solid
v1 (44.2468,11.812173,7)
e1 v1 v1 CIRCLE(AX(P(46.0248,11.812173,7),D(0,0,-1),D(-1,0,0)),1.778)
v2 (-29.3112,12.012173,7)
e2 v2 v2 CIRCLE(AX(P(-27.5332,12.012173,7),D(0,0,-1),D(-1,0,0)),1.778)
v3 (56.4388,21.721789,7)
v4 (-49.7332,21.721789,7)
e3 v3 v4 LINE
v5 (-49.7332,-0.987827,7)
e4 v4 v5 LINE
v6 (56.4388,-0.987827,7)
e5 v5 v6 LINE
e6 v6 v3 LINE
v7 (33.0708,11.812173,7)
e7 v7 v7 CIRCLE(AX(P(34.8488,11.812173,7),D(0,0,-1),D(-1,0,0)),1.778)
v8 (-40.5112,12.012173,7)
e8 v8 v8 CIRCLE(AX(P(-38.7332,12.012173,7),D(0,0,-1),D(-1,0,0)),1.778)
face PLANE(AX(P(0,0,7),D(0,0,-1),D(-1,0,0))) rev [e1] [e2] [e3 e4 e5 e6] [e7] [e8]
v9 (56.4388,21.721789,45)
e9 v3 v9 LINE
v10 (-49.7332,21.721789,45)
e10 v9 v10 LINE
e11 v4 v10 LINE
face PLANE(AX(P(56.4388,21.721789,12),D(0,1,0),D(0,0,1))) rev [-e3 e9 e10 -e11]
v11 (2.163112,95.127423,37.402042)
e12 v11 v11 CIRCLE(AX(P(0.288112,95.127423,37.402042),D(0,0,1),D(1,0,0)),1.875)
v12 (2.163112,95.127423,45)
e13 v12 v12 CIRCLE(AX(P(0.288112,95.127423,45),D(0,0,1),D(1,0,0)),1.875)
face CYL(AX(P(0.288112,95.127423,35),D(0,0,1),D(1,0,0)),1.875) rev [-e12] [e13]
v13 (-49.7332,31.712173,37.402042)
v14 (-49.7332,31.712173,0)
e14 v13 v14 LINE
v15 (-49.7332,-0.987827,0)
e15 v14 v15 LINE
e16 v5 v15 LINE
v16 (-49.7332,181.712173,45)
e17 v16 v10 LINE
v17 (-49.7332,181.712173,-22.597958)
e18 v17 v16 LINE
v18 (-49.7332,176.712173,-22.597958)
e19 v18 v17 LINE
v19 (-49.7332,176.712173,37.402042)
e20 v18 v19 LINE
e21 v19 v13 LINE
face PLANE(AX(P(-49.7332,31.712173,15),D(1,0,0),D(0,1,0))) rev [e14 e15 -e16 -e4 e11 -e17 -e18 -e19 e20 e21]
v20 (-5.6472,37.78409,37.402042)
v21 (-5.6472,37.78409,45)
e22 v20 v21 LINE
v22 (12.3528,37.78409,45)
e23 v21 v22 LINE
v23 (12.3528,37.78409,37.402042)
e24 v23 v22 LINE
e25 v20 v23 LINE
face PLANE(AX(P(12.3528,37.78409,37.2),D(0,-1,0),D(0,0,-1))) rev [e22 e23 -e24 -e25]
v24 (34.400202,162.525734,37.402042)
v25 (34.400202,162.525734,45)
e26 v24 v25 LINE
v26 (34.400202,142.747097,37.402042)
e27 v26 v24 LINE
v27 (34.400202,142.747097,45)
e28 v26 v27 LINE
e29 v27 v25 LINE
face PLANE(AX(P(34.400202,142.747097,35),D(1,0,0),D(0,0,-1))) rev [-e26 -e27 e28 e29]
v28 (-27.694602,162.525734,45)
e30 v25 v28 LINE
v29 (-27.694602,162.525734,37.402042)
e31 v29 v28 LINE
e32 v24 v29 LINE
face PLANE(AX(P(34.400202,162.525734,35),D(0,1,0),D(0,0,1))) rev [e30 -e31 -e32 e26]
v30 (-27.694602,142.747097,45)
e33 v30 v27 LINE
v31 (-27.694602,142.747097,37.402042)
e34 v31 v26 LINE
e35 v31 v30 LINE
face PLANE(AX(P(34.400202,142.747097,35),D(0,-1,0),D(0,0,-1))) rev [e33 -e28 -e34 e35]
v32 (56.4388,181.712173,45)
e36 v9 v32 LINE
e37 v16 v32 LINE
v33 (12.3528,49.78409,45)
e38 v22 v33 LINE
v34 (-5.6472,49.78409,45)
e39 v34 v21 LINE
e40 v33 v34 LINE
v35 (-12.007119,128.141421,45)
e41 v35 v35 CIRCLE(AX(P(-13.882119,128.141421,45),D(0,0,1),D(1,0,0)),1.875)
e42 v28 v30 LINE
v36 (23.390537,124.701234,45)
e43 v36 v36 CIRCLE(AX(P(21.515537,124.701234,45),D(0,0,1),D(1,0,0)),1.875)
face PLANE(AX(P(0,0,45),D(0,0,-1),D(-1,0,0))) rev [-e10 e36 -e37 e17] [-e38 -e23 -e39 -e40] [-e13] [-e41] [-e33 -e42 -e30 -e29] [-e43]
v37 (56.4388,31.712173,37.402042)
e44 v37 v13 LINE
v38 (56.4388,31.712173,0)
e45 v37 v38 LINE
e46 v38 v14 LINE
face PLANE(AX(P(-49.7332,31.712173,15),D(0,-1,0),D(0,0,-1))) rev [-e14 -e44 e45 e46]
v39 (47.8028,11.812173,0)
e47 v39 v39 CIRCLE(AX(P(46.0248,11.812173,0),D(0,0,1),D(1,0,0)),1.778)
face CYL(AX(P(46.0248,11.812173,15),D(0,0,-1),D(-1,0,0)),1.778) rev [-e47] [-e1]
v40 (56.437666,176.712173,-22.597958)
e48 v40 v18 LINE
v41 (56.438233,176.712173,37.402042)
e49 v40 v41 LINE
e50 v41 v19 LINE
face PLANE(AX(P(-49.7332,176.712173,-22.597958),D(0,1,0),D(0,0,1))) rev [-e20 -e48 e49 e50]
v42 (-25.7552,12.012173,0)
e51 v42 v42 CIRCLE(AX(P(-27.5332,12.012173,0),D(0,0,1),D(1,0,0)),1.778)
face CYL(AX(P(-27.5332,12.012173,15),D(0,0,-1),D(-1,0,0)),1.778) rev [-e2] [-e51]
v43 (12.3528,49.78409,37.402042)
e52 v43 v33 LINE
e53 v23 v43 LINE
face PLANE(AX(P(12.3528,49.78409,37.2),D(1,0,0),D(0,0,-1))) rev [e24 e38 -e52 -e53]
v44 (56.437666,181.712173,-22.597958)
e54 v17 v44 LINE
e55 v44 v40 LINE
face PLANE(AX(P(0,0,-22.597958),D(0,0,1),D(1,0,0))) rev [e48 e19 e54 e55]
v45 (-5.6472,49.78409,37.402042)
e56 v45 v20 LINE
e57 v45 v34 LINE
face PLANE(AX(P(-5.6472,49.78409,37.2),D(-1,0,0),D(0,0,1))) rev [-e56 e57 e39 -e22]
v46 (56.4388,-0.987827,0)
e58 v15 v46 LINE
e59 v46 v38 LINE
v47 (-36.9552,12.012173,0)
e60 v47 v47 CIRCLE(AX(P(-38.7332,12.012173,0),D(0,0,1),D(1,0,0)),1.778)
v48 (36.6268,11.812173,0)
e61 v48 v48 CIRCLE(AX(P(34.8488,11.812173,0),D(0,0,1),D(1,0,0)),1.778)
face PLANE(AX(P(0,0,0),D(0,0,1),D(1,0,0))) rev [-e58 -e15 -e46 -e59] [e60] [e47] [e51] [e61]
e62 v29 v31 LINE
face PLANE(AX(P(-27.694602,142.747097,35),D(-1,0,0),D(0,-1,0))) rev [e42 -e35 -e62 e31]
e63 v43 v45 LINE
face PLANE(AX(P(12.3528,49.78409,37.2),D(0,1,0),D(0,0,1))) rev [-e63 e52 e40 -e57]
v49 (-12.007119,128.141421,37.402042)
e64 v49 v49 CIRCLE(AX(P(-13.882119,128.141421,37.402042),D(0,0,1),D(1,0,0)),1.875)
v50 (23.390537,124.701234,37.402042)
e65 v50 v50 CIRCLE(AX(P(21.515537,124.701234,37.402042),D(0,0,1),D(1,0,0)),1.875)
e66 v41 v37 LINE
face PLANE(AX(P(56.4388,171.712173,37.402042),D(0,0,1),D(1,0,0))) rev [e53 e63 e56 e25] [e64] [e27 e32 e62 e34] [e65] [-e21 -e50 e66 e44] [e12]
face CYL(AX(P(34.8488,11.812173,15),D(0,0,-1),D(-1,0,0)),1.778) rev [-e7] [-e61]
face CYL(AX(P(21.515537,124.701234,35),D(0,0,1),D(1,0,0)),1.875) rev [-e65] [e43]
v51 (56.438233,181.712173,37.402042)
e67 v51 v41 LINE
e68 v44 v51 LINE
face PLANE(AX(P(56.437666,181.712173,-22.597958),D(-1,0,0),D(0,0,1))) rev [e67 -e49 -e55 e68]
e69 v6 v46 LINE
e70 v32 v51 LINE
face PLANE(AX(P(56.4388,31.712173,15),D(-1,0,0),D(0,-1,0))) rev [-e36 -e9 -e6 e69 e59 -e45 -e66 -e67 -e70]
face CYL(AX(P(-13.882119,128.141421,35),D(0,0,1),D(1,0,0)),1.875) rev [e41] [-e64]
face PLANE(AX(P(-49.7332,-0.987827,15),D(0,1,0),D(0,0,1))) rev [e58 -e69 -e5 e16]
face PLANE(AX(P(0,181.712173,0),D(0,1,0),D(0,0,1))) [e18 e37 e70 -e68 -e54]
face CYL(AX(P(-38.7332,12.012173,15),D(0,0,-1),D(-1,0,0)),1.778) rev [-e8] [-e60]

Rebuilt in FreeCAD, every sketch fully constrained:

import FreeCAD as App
import Part
import Sketcher
from FreeCAD import Vector
Q = App.Units.Quantity


def add_polygon(sketch, points):
    """Adds a closed chain of lines whose ends are joined by coincident constraints."""
    first, n = sketch.GeometryCount, len(points)
    for a, b in zip(points, points[1:] + points[:1]):
        sketch.addGeometry(Part.LineSegment(App.Vector(*a, 0), App.Vector(*b, 0)), False)
    for i in range(n):
        sketch.addConstraint(Sketcher.Constraint("Coincident", first + i, 2, first + (i + 1) % n, 1))

doc = App.newDocument("Part")
body = doc.addObject("PartDesign::Body", "Body")

sketch1 = body.newObject("Sketcher::SketchObject", "Sketch")
sketch1.AttachmentSupport = (doc.getObject("XY_Plane"), [""])
sketch1.MapMode = "FlatFace"
add_polygon(sketch1, [(-49.7, 31.7), (-49.7, -1), (56.4, -1), (56.4, 31.7)])
sketch1.addGeometry(Part.Circle(Vector(34.8, 11.8, 0), Vector(0, 0, 1), 1.8), False)
sketch1.addGeometry(Part.Circle(Vector(46, 11.8, 0), Vector(0, 0, 1), 1.8), False)
sketch1.addGeometry(Part.Circle(Vector(-38.7, 12, 0), Vector(0, 0, 1), 1.8), False)
sketch1.addGeometry(Part.Circle(Vector(-27.5, 12, 0), Vector(0, 0, 1), 1.8), False)
sketch1.addConstraint([
    Sketcher.Constraint("Vertical", 0),
    Sketcher.Constraint("Horizontal", 1),
    Sketcher.Constraint("Vertical", 2),
    Sketcher.Constraint("Horizontal", 3),
    Sketcher.Constraint("Equal", 4, 5),
    Sketcher.Constraint("Equal", 5, 6),
    Sketcher.Constraint("Equal", 6, 7),
    Sketcher.Constraint("Horizontal", 4, 3, 5, 3),
    Sketcher.Constraint("Horizontal", 6, 3, 7, 3),
    Sketcher.Constraint("Diameter", 4, Q("3.556 mm")),
    Sketcher.Constraint("DistanceY", 0, 2, 0, 1, Q("32.7 mm")),
    Sketcher.Constraint("DistanceX", 0, 2, 6, 3, Q("11 mm")),
    Sketcher.Constraint("DistanceY", 0, 2, 6, 3, Q("13 mm")),
    Sketcher.Constraint("DistanceY", 4, 3, 6, 3, Q("0.2 mm")),
    Sketcher.Constraint("DistanceX", 6, 3, 7, 3, Q("11.2 mm")),
    Sketcher.Constraint("DistanceX", 1, 1, 1, 2, Q("106.172 mm")),
    Sketcher.Constraint("DistanceX", 4, 3, 1, 2, Q("21.59 mm")),
    Sketcher.Constraint("DistanceX", 4, 3, 5, 3, Q("11.176 mm")),
    Sketcher.Constraint("DistanceX", -1, 1, 4, 3, Q("34.8488 mm")),
    Sketcher.Constraint("DistanceY", -1, 1, 4, 3, Q("11.812173 mm")),
])
pad1 = body.newObject("PartDesign::Pad", "Pad")
pad1.Profile = sketch1
pad1.Length = 15

sketch2 = body.newObject("Sketcher::SketchObject", "Sketch001")
sketch2.AttachmentSupport = (doc.getObject("XY_Plane"), [""])
sketch2.MapMode = "FlatFace"
sketch2.AttachmentOffset = App.Placement(Vector(0, 0, 15), App.Rotation())
add_polygon(sketch2, [(-49.7, 31.7), (-49.7, -1), (56.4, -1), (56.4, 31.7)])
sketch2.addGeometry(Part.Circle(Vector(34.8, 11.8, 0), Vector(0, 0, 1), 1.8), False)
sketch2.addGeometry(Part.Circle(Vector(46, 11.8, 0), Vector(0, 0, 1), 1.8), False)
sketch2.addGeometry(Part.Circle(Vector(-38.7, 12, 0), Vector(0, 0, 1), 1.8), False)
sketch2.addGeometry(Part.Circle(Vector(-27.5, 12, 0), Vector(0, 0, 1), 1.8), False)
sketch2.addConstraint([
    Sketcher.Constraint("Vertical", 0),
    Sketcher.Constraint("Horizontal", 1),
    Sketcher.Constraint("Vertical", 2),
    Sketcher.Constraint("Horizontal", 3),
    Sketcher.Constraint("Equal", 4, 5),
    Sketcher.Constraint("Equal", 5, 6),
    Sketcher.Constraint("Equal", 6, 7),
    Sketcher.Constraint("Horizontal", 4, 3, 5, 3),
    Sketcher.Constraint("Horizontal", 6, 3, 7, 3),
    Sketcher.Constraint("Diameter", 4, Q("3.556 mm")),
    Sketcher.Constraint("DistanceY", 0, 2, 0, 1, Q("32.7 mm")),
    Sketcher.Constraint("DistanceX", 0, 2, 6, 3, Q("11 mm")),
    Sketcher.Constraint("DistanceY", 0, 2, 6, 3, Q("13 mm")),
    Sketcher.Constraint("DistanceY", 4, 3, 6, 3, Q("0.2 mm")),
    Sketcher.Constraint("DistanceX", 6, 3, 7, 3, Q("11.2 mm")),
    Sketcher.Constraint("DistanceX", 1, 1, 1, 2, Q("106.172 mm")),
    Sketcher.Constraint("DistanceX", 4, 3, 1, 2, Q("21.59 mm")),
    Sketcher.Constraint("DistanceX", 4, 3, 5, 3, Q("11.176 mm")),
    Sketcher.Constraint("DistanceX", -1, 1, 4, 3, Q("34.8488 mm")),
    Sketcher.Constraint("DistanceY", -1, 1, 4, 3, Q("11.812173 mm")),
])
pad2 = body.newObject("PartDesign::Pad", "Pad001")
pad2.Profile = sketch2
pad2.Length = 30

sketch3 = body.newObject("Sketcher::SketchObject", "Sketch002")
sketch3.AttachmentSupport = (doc.getObject("YZ_Plane"), [""])
sketch3.MapMode = "FlatFace"
sketch3.AttachmentOffset = App.Placement(Vector(0, 0, -49.7332), App.Rotation())
add_polygon(sketch3, [(32, 26), (-1, 45), (32, 45)])
sketch3.addConstraint([
    Sketcher.Constraint("Horizontal", 1),
    Sketcher.Constraint("Vertical", 2),
    Sketcher.Constraint("DistanceX", 1, 1, 1, 2, Q("32.7 mm")),
    Sketcher.Constraint("DistanceY", -1, 1, 0, 2, Q("45 mm")),
    Sketcher.Constraint("DistanceY", 2, 2, 2, 1, Q("19.497232 mm")),
    Sketcher.Constraint("DistanceX", 0, 2, -1, 1, Q("0.987827 mm")),
])
pad3 = body.newObject("PartDesign::Pad", "Pad002")
pad3.Profile = sketch3
pad3.Length = 106

sketch4 = body.newObject("Sketcher::SketchObject", "Sketch003")
sketch4.AttachmentSupport = (doc.getObject("XZ_Plane"), [""])
sketch4.MapMode = "FlatFace"
sketch4.AttachmentOffset = App.Placement(Vector(0, 0, -31.712173), App.Rotation())
add_polygon(sketch4, [(-50, 37), (-50, 45), (56, 45), (56, 37)])
sketch4.addConstraint([
    Sketcher.Constraint("Vertical", 0),
    Sketcher.Constraint("Horizontal", 1),
    Sketcher.Constraint("Vertical", 2),
    Sketcher.Constraint("Horizontal", 3),
    Sketcher.Constraint("DistanceY", -1, 1, 0, 2, Q("45 mm")),
    Sketcher.Constraint("DistanceX", 1, 1, 1, 2, Q("106.172 mm")),
    Sketcher.Constraint("DistanceX", 0, 2, -1, 1, Q("49.7332 mm")),
    Sketcher.Constraint("DistanceY", 0, 1, 0, 2, Q("7.597958 mm")),
])
pad4 = body.newObject("PartDesign::Pad", "Pad003")
pad4.Profile = sketch4
pad4.Length = 140
pad4.Reversed = True

sketch5 = body.newObject("Sketcher::SketchObject", "Sketch004")
sketch5.AttachmentSupport = (doc.getObject("YZ_Plane"), [""])
sketch5.MapMode = "FlatFace"
sketch5.AttachmentOffset = App.Placement(Vector(0, 0, -49.7332), App.Rotation())
add_polygon(sketch5, [(-1, 17), (-1, 45), (22, 45)])
sketch5.addConstraint([
    Sketcher.Constraint("Vertical", 0),
    Sketcher.Constraint("Horizontal", 1),
    Sketcher.Constraint("DistanceY", -1, 1, 0, 2, Q("45 mm")),
    Sketcher.Constraint("DistanceX", 1, 1, 1, 2, Q("22.709616 mm")),
    Sketcher.Constraint("DistanceY", 0, 1, 0, 2, Q("27.948757 mm")),
    Sketcher.Constraint("DistanceX", -1, 1, 1, 2, Q("21.721789 mm")),
])
pocket1 = body.newObject("PartDesign::Pocket", "Pocket")
pocket1.Profile = sketch5
pocket1.Length = 146
pocket1.Reversed = True

sketch6 = body.newObject("Sketcher::SketchObject", "Sketch005")
sketch6.AttachmentSupport = (doc.getObject("XZ_Plane"), [""])
sketch6.MapMode = "FlatFace"
sketch6.AttachmentOffset = App.Placement(Vector(0, 0, -171.712173), App.Rotation())
add_polygon(sketch6, [(-50, 37), (-50, 45), (56, 45), (56, 37)])
sketch6.addConstraint([
    Sketcher.Constraint("Vertical", 0),
    Sketcher.Constraint("Horizontal", 1),
    Sketcher.Constraint("Vertical", 2),
    Sketcher.Constraint("Horizontal", 3),
    Sketcher.Constraint("DistanceY", -1, 1, 0, 2, Q("45 mm")),
    Sketcher.Constraint("DistanceX", 1, 1, 1, 2, Q("106.172 mm")),
    Sketcher.Constraint("DistanceX", 0, 2, -1, 1, Q("49.7332 mm")),
    Sketcher.Constraint("DistanceY", 0, 1, 0, 2, Q("7.597958 mm")),
])
pad5 = body.newObject("PartDesign::Pad", "Pad004")
pad5.Profile = sketch6
pad5.Length = 10
pad5.Reversed = True

sketch7 = body.newObject("Sketcher::SketchObject", "Sketch006")
sketch7.AttachmentSupport = (doc.getObject("XY_Plane"), [""])
sketch7.MapMode = "FlatFace"
sketch7.AttachmentOffset = App.Placement(Vector(0, 0, 37.402042), App.Rotation())
add_polygon(sketch7, [(56, 182), (56, 177), (-50, 177), (-50, 182)])
sketch7.addConstraint([
    Sketcher.Constraint("Vertical", 0),
    Sketcher.Constraint("Horizontal", 1),
    Sketcher.Constraint("Vertical", 2),
    Sketcher.Constraint("Horizontal", 3),
    Sketcher.Constraint("DistanceY", 0, 2, 0, 1, Q("5 mm")),
    Sketcher.Constraint("DistanceX", 1, 2, -1, 1, Q("49.7332 mm")),
    Sketcher.Constraint("DistanceX", 1, 2, 1, 1, Q("106.170866 mm")),
    Sketcher.Constraint("DistanceY", -1, 1, 0, 2, Q("176.712173 mm")),
])
pad6 = body.newObject("PartDesign::Pad", "Pad005")
pad6.Profile = sketch7
pad6.Length = 60
pad6.Reversed = True

sketch8 = body.newObject("Sketcher::SketchObject", "Sketch007")
sketch8.AttachmentSupport = (doc.getObject("XY_Plane"), [""])
sketch8.MapMode = "FlatFace"
sketch8.AttachmentOffset = App.Placement(Vector(0, 0, 45), App.Rotation())
add_polygon(sketch8, [(-6, 50), (-6, 38), (12, 38), (12, 50)])
sketch8.addConstraint([
    Sketcher.Constraint("Vertical", 0),
    Sketcher.Constraint("Horizontal", 1),
    Sketcher.Constraint("Vertical", 2),
    Sketcher.Constraint("Horizontal", 3),
    Sketcher.Constraint("DistanceX", 1, 1, 1, 2, Q("18 mm")),
    Sketcher.Constraint("DistanceY", 0, 2, 0, 1, Q("12 mm")),
    Sketcher.Constraint("DistanceX", 0, 2, -1, 1, Q("5.6472 mm")),
    Sketcher.Constraint("DistanceY", -1, 1, 0, 2, Q("37.78409 mm")),
])
pocket2 = body.newObject("PartDesign::Pocket", "Pocket001")
pocket2.Profile = sketch8
pocket2.Length = 7.8

sketch9 = body.newObject("Sketcher::SketchObject", "Sketch008")
sketch9.AttachmentSupport = (doc.getObject("XY_Plane"), [""])
sketch9.MapMode = "FlatFace"
sketch9.AttachmentOffset = App.Placement(Vector(0, 0, 45), App.Rotation())
sketch9.addGeometry([
    Part.Circle(Vector(-13.9, 128.1, 0), Vector(0, 0, 1), 1.9),
    Part.Circle(Vector(21.5, 124.7, 0), Vector(0, 0, 1), 1.9),
    Part.Circle(Vector(0.3, 95.1, 0), Vector(0, 0, 1), 1.9),
], False)
sketch9.addConstraint([
    Sketcher.Constraint("Equal", 0, 1),
    Sketcher.Constraint("Equal", 1, 2),
    Sketcher.Constraint("Diameter", 0, Q("3.75 mm")),
    Sketcher.Constraint("DistanceX", 0, 3, -1, 1, Q("13.882119 mm")),
    Sketcher.Constraint("DistanceY", -1, 1, 0, 3, Q("128.141421 mm")),
    Sketcher.Constraint("DistanceX", -1, 1, 2, 3, Q("0.288112 mm")),
    Sketcher.Constraint("DistanceY", 2, 3, 1, 3, Q("29.573811 mm")),
    Sketcher.Constraint("DistanceX", -1, 1, 1, 3, Q("21.515537 mm")),
    Sketcher.Constraint("DistanceY", -1, 1, 1, 3, Q("124.701234 mm")),
])
pocket3 = body.newObject("PartDesign::Pocket", "Pocket002")
pocket3.Profile = sketch9
pocket3.Length = 10

sketch10 = body.newObject("Sketcher::SketchObject", "Sketch009")
sketch10.AttachmentSupport = (doc.getObject("XY_Plane"), [""])
sketch10.MapMode = "FlatFace"
sketch10.AttachmentOffset = App.Placement(Vector(0, 0, 45), App.Rotation())
add_polygon(sketch10, [(-50, 22), (-50, -1), (56, -1), (56, 22)])
sketch10.addConstraint([
    Sketcher.Constraint("Vertical", 0),
    Sketcher.Constraint("Horizontal", 1),
    Sketcher.Constraint("Vertical", 2),
    Sketcher.Constraint("Horizontal", 3),
    Sketcher.Constraint("DistanceX", 1, 1, 1, 2, Q("106.172 mm")),
    Sketcher.Constraint("DistanceX", 0, 2, -1, 1, Q("49.7332 mm")),
    Sketcher.Constraint("DistanceY", 0, 2, 0, 1, Q("22.709616 mm")),
    Sketcher.Constraint("DistanceY", -1, 1, 2, 2, Q("21.721789 mm")),
])
pocket4 = body.newObject("PartDesign::Pocket", "Pocket003")
pocket4.Profile = sketch10
pocket4.Length = 33

sketch11 = body.newObject("Sketcher::SketchObject", "Sketch010")
sketch11.AttachmentSupport = (doc.getObject("XY_Plane"), [""])
sketch11.MapMode = "FlatFace"
sketch11.AttachmentOffset = App.Placement(Vector(0, 0, 12), App.Rotation())
add_polygon(sketch11, [(-50, 22), (-50, -1), (56, -1), (56, 22)])
sketch11.addConstraint([
    Sketcher.Constraint("Vertical", 0),
    Sketcher.Constraint("Horizontal", 1),
    Sketcher.Constraint("Vertical", 2),
    Sketcher.Constraint("Horizontal", 3),
    Sketcher.Constraint("DistanceX", 1, 1, 1, 2, Q("106.172 mm")),
    Sketcher.Constraint("DistanceX", 0, 2, -1, 1, Q("49.7332 mm")),
    Sketcher.Constraint("DistanceY", 0, 2, 0, 1, Q("22.709616 mm")),
    Sketcher.Constraint("DistanceY", -1, 1, 2, 2, Q("21.721789 mm")),
])
pocket5 = body.newObject("PartDesign::Pocket", "Pocket004")
pocket5.Profile = sketch11
pocket5.Length = 5

sketch12 = body.newObject("Sketcher::SketchObject", "Sketch011")
sketch12.AttachmentSupport = (doc.getObject("XY_Plane"), [""])
sketch12.MapMode = "FlatFace"
sketch12.AttachmentOffset = App.Placement(Vector(0, 0, 45), App.Rotation())
add_polygon(sketch12, [(-28, 163), (-28, 143), (34, 143), (34, 163)])
sketch12.addConstraint([
    Sketcher.Constraint("Vertical", 0),
    Sketcher.Constraint("Horizontal", 1),
    Sketcher.Constraint("Vertical", 2),
    Sketcher.Constraint("Horizontal", 3),
    Sketcher.Constraint("DistanceX", 0, 2, -1, 1, Q("27.694602 mm")),
    Sketcher.Constraint("DistanceX", -1, 1, 1, 2, Q("34.400202 mm")),
    Sketcher.Constraint("DistanceY", 0, 2, 0, 1, Q("19.778637 mm")),
    Sketcher.Constraint("DistanceY", -1, 1, 0, 2, Q("142.747097 mm")),
])
pocket6 = body.newObject("PartDesign::Pocket", "Pocket005")
pocket6.Profile = sketch12
pocket6.Length = 10

doc.recompute()
